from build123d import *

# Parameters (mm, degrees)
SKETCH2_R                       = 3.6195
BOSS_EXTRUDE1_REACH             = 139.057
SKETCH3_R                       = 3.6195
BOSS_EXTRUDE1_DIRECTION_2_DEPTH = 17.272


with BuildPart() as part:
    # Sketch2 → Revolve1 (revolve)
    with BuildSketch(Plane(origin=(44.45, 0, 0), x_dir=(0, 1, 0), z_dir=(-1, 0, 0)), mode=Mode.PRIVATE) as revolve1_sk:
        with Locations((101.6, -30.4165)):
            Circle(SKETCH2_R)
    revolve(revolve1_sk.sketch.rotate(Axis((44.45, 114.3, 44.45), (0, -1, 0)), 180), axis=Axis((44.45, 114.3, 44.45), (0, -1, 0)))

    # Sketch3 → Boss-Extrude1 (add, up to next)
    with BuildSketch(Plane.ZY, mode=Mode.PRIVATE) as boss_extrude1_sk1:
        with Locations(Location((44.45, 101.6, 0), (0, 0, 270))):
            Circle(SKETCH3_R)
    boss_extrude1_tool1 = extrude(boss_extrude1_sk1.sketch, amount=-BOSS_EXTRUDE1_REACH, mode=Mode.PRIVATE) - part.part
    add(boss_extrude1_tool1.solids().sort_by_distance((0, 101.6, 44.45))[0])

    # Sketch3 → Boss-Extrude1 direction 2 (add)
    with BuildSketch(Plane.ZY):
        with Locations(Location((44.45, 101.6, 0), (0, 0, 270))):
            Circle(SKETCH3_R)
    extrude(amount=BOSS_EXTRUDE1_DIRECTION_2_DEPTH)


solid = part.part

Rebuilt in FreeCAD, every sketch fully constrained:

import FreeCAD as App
import Part
import Sketcher
from FreeCAD import Vector
Q = App.Units.Quantity

doc = App.newDocument("Part")
params = doc.addObject("Spreadsheet::Sheet", "Params")
for row, (alias, value) in enumerate([
    ("sketch1_diameter", "0.285 in"),
    ("revolution_angle", "360 deg"),
    ("sketch2_diameter", "0.285 in"),
    ("sketch3_diameter", "0.285 in"),
    ("pad2_length", "0.68 in"),
], start=1):
    params.set(f"A{row}", alias)
    params.set(f"B{row}", "=" + value)
    params.setAlias(f"B{row}", alias)

body = doc.addObject("PartDesign::Body", "Body")

sketch1 = body.newObject("Sketcher::SketchObject", "Sketch")
sketch1.AttachmentSupport = (doc.getObject("YZ_Plane"), [""])
sketch1.MapMode = "FlatFace"
sketch1.AttachmentOffset = App.Placement(Vector(0, 0, 1.75 * 25.4), App.Rotation())
sketch1.addGeometry(Part.Circle(Vector(101.6, 30.4, 0), Vector(0, 0, 1), 3.6), False)
sketch1.addGeometry(Part.LineSegment(Vector(101.6, 44.5, 0), Vector(91.6, 44.5, 0)), True)
sketch1.addConstraint(Sketcher.Constraint("Horizontal", 1))
sketch1.addConstraint(Sketcher.Constraint("Vertical", 0, 3, 1, 1))
sketch1.addConstraint(Sketcher.Constraint("Diameter", 0, Q("0.285 in")))
sketch1.addConstraint(Sketcher.Constraint("DistanceX", -1, 1, 0, 3, Q("4 in")))
sketch1.addConstraint(Sketcher.Constraint("DistanceY", -1, 1, 1, 1, Q("1.75 in")))
sketch1.addConstraint(Sketcher.Constraint("DistanceX", 1, 2, 1, 1, Q("10 mm")))
sketch1.addConstraint(Sketcher.Constraint("DistanceY", -1, 1, 0, 3, Q("1.1975 in")))
sketch1.setExpression("Constraints[2]", "Params.sketch1_diameter")
revolution = body.newObject("PartDesign::Revolution", "Revolution")
revolution.Profile = sketch1
revolution.ReferenceAxis = (sketch1, ["Axis0"])
revolution.setExpression("Angle", "Params.revolution_angle")

sketch2 = body.newObject("Sketcher::SketchObject", "Sketch001")
sketch2.AttachmentSupport = (doc.getObject("YZ_Plane"), [""])
sketch2.MapMode = "FlatFace"
sketch2.addGeometry(Part.Circle(Vector(101.6, 44.5, 0), Vector(0, 0, 1), 3.6), False)
sketch2.addConstraint(Sketcher.Constraint("Diameter", 0, Q("0.285 in")))
sketch2.addConstraint(Sketcher.Constraint("DistanceX", -1, 1, 0, 3, Q("4 in")))
sketch2.addConstraint(Sketcher.Constraint("DistanceY", -1, 1, 0, 3, Q("1.75 in")))
sketch2.setExpression("Constraints[0]", "Params.sketch2_diameter")
pad1 = body.newObject("PartDesign::Pad", "Pad")
pad1.Profile = sketch2
pad1.Type = "UpToFirst"

sketch3 = body.newObject("Sketcher::SketchObject", "Sketch002")
sketch3.AttachmentSupport = (doc.getObject("YZ_Plane"), [""])
sketch3.MapMode = "FlatFace"
sketch3.addGeometry(Part.Circle(Vector(101.6, 44.5, 0), Vector(0, 0, 1), 3.6), False)
sketch3.addConstraint(Sketcher.Constraint("Diameter", 0, Q("0.285 in")))
sketch3.addConstraint(Sketcher.Constraint("DistanceX", -1, 1, 0, 3, Q("4 in")))
sketch3.addConstraint(Sketcher.Constraint("DistanceY", -1, 1, 0, 3, Q("1.75 in")))
sketch3.setExpression("Constraints[0]", "Params.sketch3_diameter")
pad2 = body.newObject("PartDesign::Pad", "Pad001")
pad2.Profile = sketch3
pad2.setExpression("Length", "Params.pad2_length")
pad2.Reversed = True

doc.recompute()
